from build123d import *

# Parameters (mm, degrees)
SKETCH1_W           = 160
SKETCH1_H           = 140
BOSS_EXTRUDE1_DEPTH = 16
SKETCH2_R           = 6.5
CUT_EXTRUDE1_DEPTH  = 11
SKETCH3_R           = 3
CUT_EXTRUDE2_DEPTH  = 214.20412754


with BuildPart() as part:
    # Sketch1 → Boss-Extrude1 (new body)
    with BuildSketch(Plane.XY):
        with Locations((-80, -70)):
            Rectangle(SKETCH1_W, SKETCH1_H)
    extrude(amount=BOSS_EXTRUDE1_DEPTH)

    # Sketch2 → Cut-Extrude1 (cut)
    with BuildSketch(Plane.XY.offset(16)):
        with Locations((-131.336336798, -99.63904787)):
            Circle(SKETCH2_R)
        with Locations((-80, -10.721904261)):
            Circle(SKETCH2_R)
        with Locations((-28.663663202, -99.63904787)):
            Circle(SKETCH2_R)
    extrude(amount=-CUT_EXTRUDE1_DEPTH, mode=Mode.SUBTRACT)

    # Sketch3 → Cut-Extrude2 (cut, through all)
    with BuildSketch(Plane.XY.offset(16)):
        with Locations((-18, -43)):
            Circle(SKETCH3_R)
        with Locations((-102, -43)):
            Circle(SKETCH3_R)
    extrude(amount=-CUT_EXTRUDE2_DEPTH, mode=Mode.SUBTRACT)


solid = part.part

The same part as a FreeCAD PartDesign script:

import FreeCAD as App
import Part
import Sketcher
from FreeCAD import Vector


def add_polygon(sketch, points):
    """Adds a closed chain of lines whose ends are joined by coincident constraints."""
    first, n = sketch.GeometryCount, len(points)
    for a, b in zip(points, points[1:] + points[:1]):
        sketch.addGeometry(Part.LineSegment(App.Vector(*a, 0), App.Vector(*b, 0)), False)
    for i in range(n):
        sketch.addConstraint(Sketcher.Constraint("Coincident", first + i, 2, first + (i + 1) % n, 1))

doc = App.newDocument("Part")
body = doc.addObject("PartDesign::Body", "Body")

# Sketch on XY plane
sketch1 = body.newObject("Sketcher::SketchObject", "Sketch")
sketch1.AttachmentSupport = (doc.getObject("XY_Plane"), [""])
sketch1.MapMode = "FlatFace"
add_polygon(sketch1, [(-160, 0), (-160, -140), (0, -140), (0, 0)])  # lines 0-3
sketch1.addConstraint([
    Sketcher.Constraint("Vertical", 0),
    Sketcher.Constraint("Horizontal", 1),
    Sketcher.Constraint("Vertical", 2),
    Sketcher.Constraint("Horizontal", 3),
    Sketcher.Constraint("Coincident", 2, 2, -1, 1),
    Sketcher.Constraint("DistanceX", 1, 1, 1, 2, 160.0),
    Sketcher.Constraint("DistanceY", 0, 2, 0, 1, 140.0),
])
pad1 = body.newObject("PartDesign::Pad", "Pad")
pad1.Profile = sketch1
pad1.Length = 16

# Sketch on XY plane
sketch2 = body.newObject("Sketcher::SketchObject", "Sketch001")
sketch2.AttachmentSupport = (doc.getObject("XY_Plane"), [""])
sketch2.MapMode = "FlatFace"
sketch2.AttachmentOffset = App.Placement(Vector(0, 0, 16), App.Rotation())
sketch2.addGeometry([
    Part.Circle(Vector(-131, -100, 0), Vector(0, 0, 1), 6),
    Part.Circle(Vector(-80, -11, 0), Vector(0, 0, 1), 6),
    Part.Circle(Vector(-29, -100, 0), Vector(0, 0, 1), 6),
], False)
sketch2.addConstraint([
    Sketcher.Constraint("Equal", 0, 1),
    Sketcher.Constraint("Equal", 1, 2),
    Sketcher.Constraint("Horizontal", 0, 3, 2, 3),
    Sketcher.Constraint("Diameter", 0, 13.0),
    Sketcher.Constraint("DistanceX", 1, 3, -1, 1, 80.0),
    Sketcher.Constraint("DistanceX", 0, 3, -1, 1, 131.336337),
    Sketcher.Constraint("DistanceY", 0, 3, -1, 1, 99.639048),
    Sketcher.Constraint("DistanceY", 1, 3, -1, 1, 10.721904),
    Sketcher.Constraint("DistanceX", 2, 3, -1, 1, 28.663663),
])
pocket1 = body.newObject("PartDesign::Pocket", "Pocket")
pocket1.Profile = sketch2
pocket1.Length = 11

# Sketch on XY plane
sketch3 = body.newObject("Sketcher::SketchObject", "Sketch002")
sketch3.AttachmentSupport = (doc.getObject("XY_Plane"), [""])
sketch3.MapMode = "FlatFace"
sketch3.AttachmentOffset = App.Placement(Vector(0, 0, 16), App.Rotation())
sketch3.addGeometry([
    Part.Circle(Vector(-18, -43, 0), Vector(0, 0, 1), 3),
    Part.Circle(Vector(-102, -43, 0), Vector(0, 0, 1), 3),
], False)
sketch3.addConstraint([
    Sketcher.Constraint("Equal", 0, 1),
    Sketcher.Constraint("Horizontal", 0, 3, 1, 3),
    Sketcher.Constraint("Diameter", 0, 6.0),
    Sketcher.Constraint("DistanceX", 0, 3, -1, 1, 18.0),
    Sketcher.Constraint("DistanceY", 0, 3, -1, 1, 43.0),
    Sketcher.Constraint("DistanceX", 1, 3, -1, 1, 102.0),
])
pocket2 = body.newObject("PartDesign::Pocket", "Pocket001")
pocket2.Profile = sketch3
pocket2.Type = "ThroughAll"

doc.recompute()
